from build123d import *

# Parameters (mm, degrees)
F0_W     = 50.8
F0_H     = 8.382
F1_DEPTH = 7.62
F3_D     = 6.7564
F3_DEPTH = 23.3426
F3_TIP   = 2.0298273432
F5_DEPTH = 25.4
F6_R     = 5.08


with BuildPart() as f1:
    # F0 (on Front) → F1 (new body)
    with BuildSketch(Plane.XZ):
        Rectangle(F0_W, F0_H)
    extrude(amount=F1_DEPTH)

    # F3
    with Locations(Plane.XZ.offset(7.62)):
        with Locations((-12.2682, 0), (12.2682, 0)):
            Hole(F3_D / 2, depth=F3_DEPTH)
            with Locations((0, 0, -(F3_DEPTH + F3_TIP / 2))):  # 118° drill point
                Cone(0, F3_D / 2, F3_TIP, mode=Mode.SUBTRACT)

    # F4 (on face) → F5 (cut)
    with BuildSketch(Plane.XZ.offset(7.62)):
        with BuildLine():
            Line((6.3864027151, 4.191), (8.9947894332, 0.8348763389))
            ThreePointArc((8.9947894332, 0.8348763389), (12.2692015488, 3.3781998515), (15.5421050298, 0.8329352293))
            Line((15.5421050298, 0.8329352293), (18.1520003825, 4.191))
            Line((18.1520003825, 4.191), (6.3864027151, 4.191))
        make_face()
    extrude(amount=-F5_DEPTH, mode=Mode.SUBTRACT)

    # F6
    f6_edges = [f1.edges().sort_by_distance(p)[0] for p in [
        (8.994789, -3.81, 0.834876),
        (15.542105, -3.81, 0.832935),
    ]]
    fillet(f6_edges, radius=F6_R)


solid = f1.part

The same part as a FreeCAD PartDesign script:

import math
import FreeCAD as App
import Part
import Sketcher
Q = App.Units.Quantity


def edges_at(feature, points):
    """Names of the edges that pass closest to the given points."""
    edges = feature.Shape.Edges
    near = lambda p: min(range(len(edges)), key=lambda i: edges[i].distToShape(Part.Vertex(*p))[0])
    return sorted({f"Edge{near(p) + 1}" for p in points})


def add_polygon(sketch, points):
    """Adds a closed chain of lines whose ends are joined by coincident constraints."""
    first, n = sketch.GeometryCount, len(points)
    for a, b in zip(points, points[1:] + points[:1]):
        sketch.addGeometry(Part.LineSegment(App.Vector(*a, 0), App.Vector(*b, 0)), False)
    for i in range(n):
        sketch.addConstraint(Sketcher.Constraint("Coincident", first + i, 2, first + (i + 1) % n, 1))

doc = App.newDocument("Part")
params = doc.addObject("Spreadsheet::Sheet", "Params")
for row, (alias, value) in enumerate([
    ("sketch1_width", "2 in"),
    ("sketch1_height", "0.33 in"),
    ("pad1_length", "0.3 in"),
    ("sketch2_diameter", "0.266 in"),
    ("hole_diameter", "0.266 in"),
    ("hole_depth", "0.919 in"),
    ("sketch3_radius", "0.133 in"),
    ("pocket1_length", "1 in"),
    ("fillet_radius", "0.2 in"),
], start=1):
    params.set(f"A{row}", alias)
    params.set(f"B{row}", "=" + value)
    params.setAlias(f"B{row}", alias)

body = doc.addObject("PartDesign::Body", "Body")

# Sketch on XZ plane
sketch1 = doc.addObject("Sketcher::SketchObject", "Sketch")
body.addObject(sketch1)
sketch1.AttachmentSupport = (doc.XZ_Plane, [""])
sketch1.MapMode = "FlatFace"
add_polygon(sketch1, [(-25, 4), (-25, -4), (25, -4), (25, 4)])  # lines 0-3
sketch1.addConstraint([
    Sketcher.Constraint("Vertical", 0),
    Sketcher.Constraint("Horizontal", 1),
    Sketcher.Constraint("Vertical", 2),
    Sketcher.Constraint("Horizontal", 3),
    Sketcher.Constraint("Symmetric", 0, 2, 2, 2, -1, 1),
    Sketcher.Constraint("DistanceX", 1, 1, 1, 2, Q("2 in")),
    Sketcher.Constraint("DistanceY", 0, 2, 0, 1, Q("0.33 in")),
])
sketch1.setExpression("Constraints[9]", "Params.sketch1_width")
sketch1.setExpression("Constraints[10]", "Params.sketch1_height")
pad1 = doc.addObject("PartDesign::Pad", "Pad")
body.addObject(pad1)
pad1.Profile = sketch1
pad1.setExpression("Length", "Params.pad1_length")

# Sketch on XZ plane
sketch2 = doc.addObject("Sketcher::SketchObject", "Sketch001")
body.addObject(sketch2)
sketch2.AttachmentSupport = (doc.XZ_Plane, [""])
sketch2.MapMode = "FlatFace"
sketch2.AttachmentOffset = App.Placement(App.Vector(0, 0, 0.3 * 25.4), App.Rotation())
sketch2.addGeometry([
    Part.Circle(App.Vector(-12.3, 0, 0), App.Vector(0, 0, 1), 3.4),
    Part.Circle(App.Vector(12.3, 0, 0), App.Vector(0, 0, 1), 3.4),
], False)
sketch2.addConstraint([
    Sketcher.Constraint("Equal", 0, 1),
    Sketcher.Constraint("Symmetric", 0, 3, 1, 3, -1, 1),
    Sketcher.Constraint("PointOnObject", 0, 3, -1),
    Sketcher.Constraint("Diameter", 0, Q("0.266 in")),
    Sketcher.Constraint("DistanceX", 0, 3, -1, 1, Q("0.483 in")),
])
sketch2.setExpression("Constraints[3]", "Params.sketch2_diameter")
doc.recompute()
hole = doc.addObject("PartDesign::Hole", "Hole")
body.addObject(hole)
hole.Profile = sketch2
hole.ThreadType = "None"
hole.setExpression("Diameter", "Params.hole_diameter")
hole.DepthType = "Dimension"
hole.setExpression("Depth", "Params.hole_depth")
hole.DrillPoint = "Angled"
hole.DrillPointAngle = 118

# Sketch on XZ plane
sketch3 = doc.addObject("Sketcher::SketchObject", "Sketch002")
body.addObject(sketch3)
sketch3.AttachmentSupport = (doc.XZ_Plane, [""])
sketch3.MapMode = "FlatFace"
sketch3.AttachmentOffset = App.Placement(App.Vector(0, 0, 0.3 * 25.4), App.Rotation())
sketch3.addGeometry([
    Part.LineSegment(App.Vector(6.4, 4.2, 0), App.Vector(9, 0.8, 0)),
    Part.ArcOfCircle(Part.Circle(App.Vector(12.3, 0, 0), App.Vector(0, 0, 1), 3.4), math.radians(14), math.radians(166)),
    Part.LineSegment(App.Vector(15.5, 0.8, 0), App.Vector(18.2, 4.2, 0)),
    Part.LineSegment(App.Vector(18.2, 4.2, 0), App.Vector(6.4, 4.2, 0)),
], False)
sketch3.addConstraint([
    Sketcher.Constraint("Coincident", 0, 2, 1, 2),
    Sketcher.Constraint("Coincident", 1, 1, 2, 1),
    Sketcher.Constraint("Coincident", 2, 2, 3, 1),
    Sketcher.Constraint("Coincident", 3, 2, 0, 1),
    Sketcher.Constraint("Horizontal", 3),
    Sketcher.Constraint("PointOnObject", 1, 3, -1),
    Sketcher.Constraint("Radius", 1, Q("0.133 in")),
    Sketcher.Constraint("DistanceX", -1, 1, 1, 3, Q("0.483 in")),
    Sketcher.Constraint("DistanceY", -1, 1, 2, 2, Q("0.165 in")),
    Sketcher.Constraint("DistanceX", -1, 1, 2, 2, Q("18.152 mm")),
    Sketcher.Constraint("Distance", 0, Q("4.250558 mm")),
    Sketcher.Constraint("DistanceX", 3, 2, 3, 1, Q("11.765598 mm")),
    Sketcher.Constraint("DistanceY", 1, 1, 0, 2, Q("0.001941 mm")),
])
sketch3.setExpression("Constraints[6]", "Params.sketch3_radius")
pocket1 = doc.addObject("PartDesign::Pocket", "Pocket")
body.addObject(pocket1)
pocket1.Profile = sketch3
pocket1.setExpression("Length", "Params.pocket1_length")
doc.recompute()

fillet = doc.addObject("PartDesign::Fillet", "Fillet")
body.addObject(fillet)
fillet.Base = (pocket1, edges_at(pocket1, [(8.995, -3.81, 0.835), (15.542, -3.81, 0.833)]))
fillet.setExpression("Radius", "Params.fillet_radius")

doc.recompute()
